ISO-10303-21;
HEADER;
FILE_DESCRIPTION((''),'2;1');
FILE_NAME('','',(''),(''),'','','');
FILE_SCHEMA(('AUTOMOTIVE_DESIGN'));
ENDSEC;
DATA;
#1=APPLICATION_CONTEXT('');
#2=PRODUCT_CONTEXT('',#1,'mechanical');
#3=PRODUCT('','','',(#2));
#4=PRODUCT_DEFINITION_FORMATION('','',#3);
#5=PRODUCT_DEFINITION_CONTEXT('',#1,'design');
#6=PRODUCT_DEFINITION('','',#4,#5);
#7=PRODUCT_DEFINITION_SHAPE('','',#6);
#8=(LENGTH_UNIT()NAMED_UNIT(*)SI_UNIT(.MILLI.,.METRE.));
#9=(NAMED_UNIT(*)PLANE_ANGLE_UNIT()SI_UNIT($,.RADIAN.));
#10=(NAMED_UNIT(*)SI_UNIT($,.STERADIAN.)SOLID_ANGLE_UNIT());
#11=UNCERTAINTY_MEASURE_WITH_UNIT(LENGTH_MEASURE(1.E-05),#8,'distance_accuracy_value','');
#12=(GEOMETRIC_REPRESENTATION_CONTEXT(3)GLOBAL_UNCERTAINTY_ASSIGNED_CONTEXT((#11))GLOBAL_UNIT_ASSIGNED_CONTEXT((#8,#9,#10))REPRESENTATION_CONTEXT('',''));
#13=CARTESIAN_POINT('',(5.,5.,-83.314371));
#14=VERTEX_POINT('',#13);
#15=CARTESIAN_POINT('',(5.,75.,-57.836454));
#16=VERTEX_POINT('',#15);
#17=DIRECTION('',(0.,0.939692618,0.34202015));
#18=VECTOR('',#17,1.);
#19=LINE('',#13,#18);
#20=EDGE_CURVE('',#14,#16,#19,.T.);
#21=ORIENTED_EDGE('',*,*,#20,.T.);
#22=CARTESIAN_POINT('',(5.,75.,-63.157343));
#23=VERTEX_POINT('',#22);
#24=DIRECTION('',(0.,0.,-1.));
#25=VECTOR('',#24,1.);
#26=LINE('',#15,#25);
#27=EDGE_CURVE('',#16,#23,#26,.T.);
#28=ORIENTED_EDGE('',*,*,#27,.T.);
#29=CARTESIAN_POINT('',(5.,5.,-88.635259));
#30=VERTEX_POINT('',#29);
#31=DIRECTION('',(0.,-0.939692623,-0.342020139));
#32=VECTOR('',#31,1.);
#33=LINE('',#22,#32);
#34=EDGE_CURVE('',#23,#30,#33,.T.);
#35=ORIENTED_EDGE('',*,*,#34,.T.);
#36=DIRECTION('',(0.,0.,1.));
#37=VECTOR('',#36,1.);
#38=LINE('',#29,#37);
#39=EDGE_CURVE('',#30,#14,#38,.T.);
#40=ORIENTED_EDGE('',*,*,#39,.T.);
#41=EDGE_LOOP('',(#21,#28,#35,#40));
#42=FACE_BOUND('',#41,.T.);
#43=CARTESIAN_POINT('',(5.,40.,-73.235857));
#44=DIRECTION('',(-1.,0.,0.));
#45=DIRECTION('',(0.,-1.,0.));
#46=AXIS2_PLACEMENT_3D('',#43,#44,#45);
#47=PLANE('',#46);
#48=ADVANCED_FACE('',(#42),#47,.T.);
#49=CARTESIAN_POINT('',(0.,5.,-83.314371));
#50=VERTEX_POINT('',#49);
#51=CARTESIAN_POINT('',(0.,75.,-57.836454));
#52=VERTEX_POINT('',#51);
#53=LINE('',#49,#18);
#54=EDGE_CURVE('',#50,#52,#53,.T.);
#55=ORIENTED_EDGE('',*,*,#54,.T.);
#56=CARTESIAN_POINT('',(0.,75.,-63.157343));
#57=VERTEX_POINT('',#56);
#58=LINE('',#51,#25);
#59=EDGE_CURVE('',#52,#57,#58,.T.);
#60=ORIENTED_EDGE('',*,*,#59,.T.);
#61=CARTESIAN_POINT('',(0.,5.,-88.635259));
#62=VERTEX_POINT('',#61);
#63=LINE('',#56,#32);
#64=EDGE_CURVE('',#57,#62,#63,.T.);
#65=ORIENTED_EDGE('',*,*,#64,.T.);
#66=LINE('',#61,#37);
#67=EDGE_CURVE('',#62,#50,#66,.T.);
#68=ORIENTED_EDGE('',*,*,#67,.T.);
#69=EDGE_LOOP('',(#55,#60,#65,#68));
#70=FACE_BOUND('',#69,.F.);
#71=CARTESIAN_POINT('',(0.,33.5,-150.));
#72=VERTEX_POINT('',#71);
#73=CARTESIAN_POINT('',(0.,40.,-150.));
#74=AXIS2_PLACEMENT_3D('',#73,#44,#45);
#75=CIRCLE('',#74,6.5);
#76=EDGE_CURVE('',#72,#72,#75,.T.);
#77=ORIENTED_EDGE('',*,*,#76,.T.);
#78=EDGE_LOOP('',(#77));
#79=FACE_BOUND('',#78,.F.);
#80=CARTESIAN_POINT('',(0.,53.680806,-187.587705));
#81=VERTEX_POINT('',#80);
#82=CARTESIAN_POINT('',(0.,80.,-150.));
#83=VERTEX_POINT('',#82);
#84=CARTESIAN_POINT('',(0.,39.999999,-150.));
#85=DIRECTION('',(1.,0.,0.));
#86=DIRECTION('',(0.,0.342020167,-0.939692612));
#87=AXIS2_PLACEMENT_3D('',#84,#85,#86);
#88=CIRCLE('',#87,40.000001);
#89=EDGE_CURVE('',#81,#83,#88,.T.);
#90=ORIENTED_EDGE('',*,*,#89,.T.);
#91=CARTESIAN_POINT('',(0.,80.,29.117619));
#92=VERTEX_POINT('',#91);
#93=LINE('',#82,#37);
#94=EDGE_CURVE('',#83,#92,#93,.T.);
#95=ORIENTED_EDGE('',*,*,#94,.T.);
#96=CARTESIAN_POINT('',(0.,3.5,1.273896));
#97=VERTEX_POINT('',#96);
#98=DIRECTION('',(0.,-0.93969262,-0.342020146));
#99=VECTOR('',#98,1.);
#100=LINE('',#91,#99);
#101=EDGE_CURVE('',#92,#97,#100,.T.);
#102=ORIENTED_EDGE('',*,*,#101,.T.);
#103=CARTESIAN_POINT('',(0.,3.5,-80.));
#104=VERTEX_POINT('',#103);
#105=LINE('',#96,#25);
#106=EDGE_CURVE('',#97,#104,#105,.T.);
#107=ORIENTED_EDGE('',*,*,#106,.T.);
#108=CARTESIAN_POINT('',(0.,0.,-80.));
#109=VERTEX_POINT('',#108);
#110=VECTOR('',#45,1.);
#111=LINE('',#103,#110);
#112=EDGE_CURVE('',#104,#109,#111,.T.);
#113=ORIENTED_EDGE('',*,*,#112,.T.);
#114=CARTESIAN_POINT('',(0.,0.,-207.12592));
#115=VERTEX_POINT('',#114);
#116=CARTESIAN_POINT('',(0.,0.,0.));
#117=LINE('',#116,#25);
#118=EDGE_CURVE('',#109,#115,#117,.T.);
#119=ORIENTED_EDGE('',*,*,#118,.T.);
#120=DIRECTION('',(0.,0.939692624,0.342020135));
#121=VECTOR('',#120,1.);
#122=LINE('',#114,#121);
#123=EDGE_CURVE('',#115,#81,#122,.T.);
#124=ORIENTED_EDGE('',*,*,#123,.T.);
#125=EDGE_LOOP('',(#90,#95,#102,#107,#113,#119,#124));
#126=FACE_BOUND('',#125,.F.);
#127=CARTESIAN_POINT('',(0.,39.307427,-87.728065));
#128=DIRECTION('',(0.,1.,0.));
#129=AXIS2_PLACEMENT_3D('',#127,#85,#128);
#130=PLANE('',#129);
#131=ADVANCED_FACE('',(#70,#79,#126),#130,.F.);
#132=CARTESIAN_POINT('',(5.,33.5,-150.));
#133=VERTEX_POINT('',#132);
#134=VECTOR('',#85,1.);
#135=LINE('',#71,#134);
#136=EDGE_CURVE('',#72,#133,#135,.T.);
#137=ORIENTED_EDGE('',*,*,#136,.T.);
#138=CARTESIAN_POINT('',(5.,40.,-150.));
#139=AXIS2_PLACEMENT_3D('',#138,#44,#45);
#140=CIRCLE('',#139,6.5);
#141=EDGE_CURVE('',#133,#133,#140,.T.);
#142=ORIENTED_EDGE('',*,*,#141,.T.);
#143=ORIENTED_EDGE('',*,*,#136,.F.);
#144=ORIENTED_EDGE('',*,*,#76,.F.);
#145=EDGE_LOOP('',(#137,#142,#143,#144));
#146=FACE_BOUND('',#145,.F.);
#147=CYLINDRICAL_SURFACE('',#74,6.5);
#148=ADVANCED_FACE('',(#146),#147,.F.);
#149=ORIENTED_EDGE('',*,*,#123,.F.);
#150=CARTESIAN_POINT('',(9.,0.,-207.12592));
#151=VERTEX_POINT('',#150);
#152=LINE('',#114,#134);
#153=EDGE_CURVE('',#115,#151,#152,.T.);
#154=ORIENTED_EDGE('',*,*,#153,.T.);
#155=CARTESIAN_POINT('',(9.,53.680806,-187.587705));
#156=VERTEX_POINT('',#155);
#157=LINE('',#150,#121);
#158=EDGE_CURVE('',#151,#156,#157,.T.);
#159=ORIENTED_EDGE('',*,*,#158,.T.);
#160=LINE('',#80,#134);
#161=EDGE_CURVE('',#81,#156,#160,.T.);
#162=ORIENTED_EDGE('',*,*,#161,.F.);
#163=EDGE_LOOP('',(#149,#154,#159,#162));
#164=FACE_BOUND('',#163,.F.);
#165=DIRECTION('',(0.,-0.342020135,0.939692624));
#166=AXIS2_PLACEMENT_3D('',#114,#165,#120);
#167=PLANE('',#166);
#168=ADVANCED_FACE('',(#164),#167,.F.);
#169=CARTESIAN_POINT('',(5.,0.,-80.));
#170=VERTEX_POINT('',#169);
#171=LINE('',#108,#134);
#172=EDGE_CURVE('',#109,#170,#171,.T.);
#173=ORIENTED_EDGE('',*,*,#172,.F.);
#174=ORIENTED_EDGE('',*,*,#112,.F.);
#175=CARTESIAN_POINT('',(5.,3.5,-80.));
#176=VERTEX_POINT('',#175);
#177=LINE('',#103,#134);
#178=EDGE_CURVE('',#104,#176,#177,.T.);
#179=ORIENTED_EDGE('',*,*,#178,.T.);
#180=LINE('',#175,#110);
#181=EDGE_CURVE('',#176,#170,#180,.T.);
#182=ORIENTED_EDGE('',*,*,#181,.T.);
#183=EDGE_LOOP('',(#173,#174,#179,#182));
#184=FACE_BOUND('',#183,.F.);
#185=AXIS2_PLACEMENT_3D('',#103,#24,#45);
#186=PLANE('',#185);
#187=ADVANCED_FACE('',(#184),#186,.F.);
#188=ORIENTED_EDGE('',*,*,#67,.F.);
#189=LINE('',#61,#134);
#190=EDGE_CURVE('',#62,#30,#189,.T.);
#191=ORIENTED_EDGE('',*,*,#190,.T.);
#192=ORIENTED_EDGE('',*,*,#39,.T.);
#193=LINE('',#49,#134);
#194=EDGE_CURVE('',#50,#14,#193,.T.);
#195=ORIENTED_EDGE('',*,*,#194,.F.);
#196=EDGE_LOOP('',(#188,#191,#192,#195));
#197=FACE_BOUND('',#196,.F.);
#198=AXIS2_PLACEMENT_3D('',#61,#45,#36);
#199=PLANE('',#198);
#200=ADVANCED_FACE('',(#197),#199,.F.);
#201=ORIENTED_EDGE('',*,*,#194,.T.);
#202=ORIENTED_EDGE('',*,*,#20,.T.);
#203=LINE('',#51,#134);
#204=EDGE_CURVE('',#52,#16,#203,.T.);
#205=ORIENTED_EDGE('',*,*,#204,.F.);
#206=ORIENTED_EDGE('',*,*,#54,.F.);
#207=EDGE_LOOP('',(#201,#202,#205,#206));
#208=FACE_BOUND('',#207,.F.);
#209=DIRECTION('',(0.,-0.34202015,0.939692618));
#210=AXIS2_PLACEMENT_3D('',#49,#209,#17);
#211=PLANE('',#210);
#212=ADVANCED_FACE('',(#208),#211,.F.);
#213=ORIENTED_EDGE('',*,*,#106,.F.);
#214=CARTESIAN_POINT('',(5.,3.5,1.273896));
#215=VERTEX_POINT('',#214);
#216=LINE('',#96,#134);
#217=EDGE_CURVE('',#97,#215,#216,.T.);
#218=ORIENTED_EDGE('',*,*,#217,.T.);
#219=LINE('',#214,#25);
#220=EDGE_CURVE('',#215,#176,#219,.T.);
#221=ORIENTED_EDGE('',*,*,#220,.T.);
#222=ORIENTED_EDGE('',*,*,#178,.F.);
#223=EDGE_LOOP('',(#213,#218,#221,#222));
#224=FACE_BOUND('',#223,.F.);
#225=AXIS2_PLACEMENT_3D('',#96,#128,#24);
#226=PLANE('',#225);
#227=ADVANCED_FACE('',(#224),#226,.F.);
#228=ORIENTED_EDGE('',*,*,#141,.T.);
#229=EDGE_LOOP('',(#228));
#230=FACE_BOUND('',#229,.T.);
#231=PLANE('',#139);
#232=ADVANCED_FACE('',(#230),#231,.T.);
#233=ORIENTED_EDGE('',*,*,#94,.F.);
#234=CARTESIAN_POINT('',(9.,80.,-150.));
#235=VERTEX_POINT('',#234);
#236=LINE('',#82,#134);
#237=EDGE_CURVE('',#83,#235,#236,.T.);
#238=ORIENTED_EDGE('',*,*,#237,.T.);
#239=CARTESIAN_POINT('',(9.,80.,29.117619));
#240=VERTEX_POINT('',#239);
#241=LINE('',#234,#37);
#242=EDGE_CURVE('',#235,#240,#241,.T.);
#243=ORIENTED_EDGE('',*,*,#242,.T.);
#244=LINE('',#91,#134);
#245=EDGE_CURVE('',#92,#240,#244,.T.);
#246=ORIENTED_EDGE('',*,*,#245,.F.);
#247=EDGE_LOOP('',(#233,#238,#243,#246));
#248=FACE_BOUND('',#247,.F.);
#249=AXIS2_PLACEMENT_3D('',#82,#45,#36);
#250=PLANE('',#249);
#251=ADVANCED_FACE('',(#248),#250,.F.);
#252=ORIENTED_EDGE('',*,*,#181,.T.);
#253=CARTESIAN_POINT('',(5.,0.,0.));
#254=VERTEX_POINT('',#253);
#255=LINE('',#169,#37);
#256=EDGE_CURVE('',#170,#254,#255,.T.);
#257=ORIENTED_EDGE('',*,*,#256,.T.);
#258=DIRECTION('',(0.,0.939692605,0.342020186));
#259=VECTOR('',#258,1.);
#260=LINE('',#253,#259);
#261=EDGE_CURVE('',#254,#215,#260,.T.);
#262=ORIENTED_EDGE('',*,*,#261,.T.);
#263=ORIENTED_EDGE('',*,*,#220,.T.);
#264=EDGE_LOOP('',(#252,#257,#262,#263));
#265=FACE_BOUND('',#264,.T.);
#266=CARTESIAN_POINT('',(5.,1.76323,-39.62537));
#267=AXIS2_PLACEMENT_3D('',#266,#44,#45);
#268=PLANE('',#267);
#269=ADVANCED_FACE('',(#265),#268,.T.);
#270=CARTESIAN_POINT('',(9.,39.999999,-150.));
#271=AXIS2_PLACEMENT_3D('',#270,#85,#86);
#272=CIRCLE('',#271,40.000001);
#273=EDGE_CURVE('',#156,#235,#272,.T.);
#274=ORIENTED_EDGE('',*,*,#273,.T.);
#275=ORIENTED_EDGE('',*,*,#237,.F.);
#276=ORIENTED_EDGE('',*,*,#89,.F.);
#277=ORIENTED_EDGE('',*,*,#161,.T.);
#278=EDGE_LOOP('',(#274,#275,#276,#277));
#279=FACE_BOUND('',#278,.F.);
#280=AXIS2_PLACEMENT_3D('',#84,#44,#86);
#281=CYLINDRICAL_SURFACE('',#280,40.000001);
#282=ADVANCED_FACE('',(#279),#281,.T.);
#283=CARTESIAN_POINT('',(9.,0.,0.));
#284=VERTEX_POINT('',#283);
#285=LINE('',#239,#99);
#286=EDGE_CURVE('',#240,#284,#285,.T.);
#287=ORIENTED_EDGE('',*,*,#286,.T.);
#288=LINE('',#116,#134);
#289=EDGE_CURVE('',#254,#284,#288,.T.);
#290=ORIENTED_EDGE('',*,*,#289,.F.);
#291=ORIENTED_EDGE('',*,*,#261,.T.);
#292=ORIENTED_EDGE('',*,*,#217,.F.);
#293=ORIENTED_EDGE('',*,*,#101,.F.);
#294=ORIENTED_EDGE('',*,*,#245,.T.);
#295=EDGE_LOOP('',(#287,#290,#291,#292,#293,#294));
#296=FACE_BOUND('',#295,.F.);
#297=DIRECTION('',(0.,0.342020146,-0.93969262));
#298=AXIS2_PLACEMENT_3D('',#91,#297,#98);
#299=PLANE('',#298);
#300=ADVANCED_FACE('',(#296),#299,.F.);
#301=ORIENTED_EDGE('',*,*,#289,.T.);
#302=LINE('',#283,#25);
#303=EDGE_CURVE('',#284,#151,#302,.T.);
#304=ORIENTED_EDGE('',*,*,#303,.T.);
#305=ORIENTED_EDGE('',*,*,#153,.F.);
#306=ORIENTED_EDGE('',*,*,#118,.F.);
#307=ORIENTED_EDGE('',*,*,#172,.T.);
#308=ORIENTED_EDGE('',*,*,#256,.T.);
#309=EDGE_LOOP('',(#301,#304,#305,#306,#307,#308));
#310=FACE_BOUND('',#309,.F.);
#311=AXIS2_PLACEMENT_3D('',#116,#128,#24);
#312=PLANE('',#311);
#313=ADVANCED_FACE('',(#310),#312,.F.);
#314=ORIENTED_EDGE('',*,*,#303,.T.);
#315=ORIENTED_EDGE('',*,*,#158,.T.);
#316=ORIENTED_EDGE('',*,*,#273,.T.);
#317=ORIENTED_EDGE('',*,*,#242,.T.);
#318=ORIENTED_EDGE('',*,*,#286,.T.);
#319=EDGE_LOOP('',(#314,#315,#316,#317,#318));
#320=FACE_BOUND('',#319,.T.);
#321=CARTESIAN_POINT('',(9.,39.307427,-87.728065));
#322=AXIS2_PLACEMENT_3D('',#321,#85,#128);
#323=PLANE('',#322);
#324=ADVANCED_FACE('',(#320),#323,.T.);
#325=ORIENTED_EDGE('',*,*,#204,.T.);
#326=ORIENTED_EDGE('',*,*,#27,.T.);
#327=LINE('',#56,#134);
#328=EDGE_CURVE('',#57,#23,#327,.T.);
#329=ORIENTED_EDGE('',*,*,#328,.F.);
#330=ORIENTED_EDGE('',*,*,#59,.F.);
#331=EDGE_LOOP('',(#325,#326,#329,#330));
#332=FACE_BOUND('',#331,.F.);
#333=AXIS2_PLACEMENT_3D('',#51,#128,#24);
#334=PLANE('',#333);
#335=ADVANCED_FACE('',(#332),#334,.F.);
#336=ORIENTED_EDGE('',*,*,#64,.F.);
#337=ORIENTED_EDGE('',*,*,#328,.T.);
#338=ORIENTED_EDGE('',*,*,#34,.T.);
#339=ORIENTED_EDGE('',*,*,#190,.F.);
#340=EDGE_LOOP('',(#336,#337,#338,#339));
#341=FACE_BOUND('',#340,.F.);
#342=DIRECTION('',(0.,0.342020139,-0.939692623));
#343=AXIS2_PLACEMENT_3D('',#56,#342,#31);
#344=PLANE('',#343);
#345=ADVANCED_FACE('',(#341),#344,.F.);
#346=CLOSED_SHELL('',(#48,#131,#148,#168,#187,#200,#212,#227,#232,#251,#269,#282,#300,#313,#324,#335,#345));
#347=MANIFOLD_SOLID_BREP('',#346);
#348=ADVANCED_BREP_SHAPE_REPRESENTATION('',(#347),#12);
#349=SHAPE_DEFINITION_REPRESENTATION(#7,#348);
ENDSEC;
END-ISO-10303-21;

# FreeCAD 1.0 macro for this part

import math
import FreeCAD as App
import Part
import Sketcher

V = App.Vector
Q = App.Units.Quantity


def add_polygon(sketch, points):
    """Adds a closed chain of lines whose ends are joined by coincident constraints."""
    first, n = sketch.GeometryCount, len(points)
    for a, b in zip(points, points[1:] + points[:1]):
        sketch.addGeometry(Part.LineSegment(App.Vector(*a, 0), App.Vector(*b, 0)), False)
    for i in range(n):
        sketch.addConstraint(Sketcher.Constraint("Coincident", first + i, 2, first + (i + 1) % n, 1))

doc = App.newDocument("Part")
params = doc.addObject("Spreadsheet::Sheet", "Params")
for row, (alias, value) in enumerate([
    ("sketch1_radius", "40.000001 mm"),
    ("pad1_length", "9 mm"),
    ("sketch2_diameter", "13 mm"),
    ("pocket1_length", "5 mm"),
    ("pocket2_length", "5 mm"),
    ("sketch4_height", "80 mm"),
    ("sketch4_width", "3.5 mm"),
    ("pocket3_length", "5 mm"),
], start=1):
    params.set(f"A{row}", alias)
    params.set(f"B{row}", "=" + value)
    params.setAlias(f"B{row}", alias)

body = doc.addObject("PartDesign::Body", "Body")

# Sketch on YZ plane
sketch1 = body.newObject("Sketcher::SketchObject", "Sketch")
sketch1.AttachmentSupport = (doc.getObject("YZ_Plane"), [""])
sketch1.MapMode = "FlatFace"
sketch1.addGeometry(Part.LineSegment(V(80, 29, 0), V(0, 0, 0)), False)
sketch1.addGeometry(Part.LineSegment(V(0, 0, 0), V(0, -207, 0)), False)
sketch1.addGeometry(Part.LineSegment(V(0, -207, 0), V(54, -188, 0)), False)
sketch1.addGeometry(Part.ArcOfCircle(Part.Circle(V(40, -150, 0), V(0, 0, 1), 40), math.radians(-70), math.radians(0)), False)
sketch1.addGeometry(Part.LineSegment(V(80, -150, 0), V(80, 29, 0)), False)
sketch1.addConstraint(Sketcher.Constraint("Coincident", 0, 2, 1, 1))
sketch1.addConstraint(Sketcher.Constraint("Coincident", 1, 2, 2, 1))
sketch1.addConstraint(Sketcher.Constraint("Tangent", 2, 2, 3, 1))
sketch1.addConstraint(Sketcher.Constraint("Tangent", 3, 2, 4, 1))
sketch1.addConstraint(Sketcher.Constraint("Coincident", 4, 2, 0, 1))
sketch1.addConstraint(Sketcher.Constraint("Vertical", 1))
sketch1.addConstraint(Sketcher.Constraint("Vertical", 4))
sketch1.addConstraint(Sketcher.Constraint("Coincident", 0, 2, -1, 1))
sketch1.addConstraint(Sketcher.Constraint("Parallel", 0, 2))
sketch1.addConstraint(Sketcher.Constraint("Radius", 3, 40.000001))
sketch1.addConstraint(Sketcher.Constraint("Angle", 0, Q("-160 deg")))
sketch1.addConstraint(Sketcher.Constraint("DistanceX", -1, 1, 3, 3, 39.999999))
sketch1.addConstraint(Sketcher.Constraint("DistanceY", 3, 3, -1, 1, 150.0))
sketch1.setExpression("Constraints[9]", "Params.sketch1_radius")
pad1 = body.newObject("PartDesign::Pad", "Pad")
pad1.Profile = sketch1
pad1.setExpression("Length", "Params.pad1_length")

# Sketch on YZ plane
sketch2 = body.newObject("Sketcher::SketchObject", "Sketch001")
sketch2.AttachmentSupport = (doc.getObject("YZ_Plane"), [""])
sketch2.MapMode = "FlatFace"
sketch2.addGeometry(Part.Circle(V(40, -150, 0), V(0, 0, 1), 6), False)
sketch2.addConstraint(Sketcher.Constraint("Diameter", 0, 13.0))
sketch2.addConstraint(Sketcher.Constraint("DistanceX", -1, 1, 0, 3, 40.0))
sketch2.addConstraint(Sketcher.Constraint("DistanceY", 0, 3, -1, 1, 150.0))
sketch2.setExpression("Constraints[0]", "Params.sketch2_diameter")
pocket1 = body.newObject("PartDesign::Pocket", "Pocket")
pocket1.Profile = sketch2
pocket1.setExpression("Length", "Params.pocket1_length")
pocket1.Reversed = True

# Sketch on YZ plane
sketch3 = body.newObject("Sketcher::SketchObject", "Sketch002")
sketch3.AttachmentSupport = (doc.getObject("YZ_Plane"), [""])
sketch3.MapMode = "FlatFace"
add_polygon(sketch3, [(5, -89), (5, -83), (75, -58), (75, -63)])  # lines 0-3
sketch3.addConstraint(Sketcher.Constraint("Vertical", 0))
sketch3.addConstraint(Sketcher.Constraint("Vertical", 2))
sketch3.addConstraint(Sketcher.Constraint("Parallel", 1, 3))
sketch3.addConstraint(Sketcher.Constraint("Angle", 1, Q("20 deg")))
sketch3.addConstraint(Sketcher.Constraint("DistanceX", -1, 1, 0, 2, 5.0))
sketch3.addConstraint(Sketcher.Constraint("DistanceX", -1, 1, 1, 2, 75.0))
sketch3.addConstraint(Sketcher.Constraint("DistanceY", 0, 1, 0, 2, 5.320888))
sketch3.addConstraint(Sketcher.Constraint("DistanceY", 0, 2, -1, 1, 83.314371))
pocket2 = body.newObject("PartDesign::Pocket", "Pocket001")
pocket2.Profile = sketch3
pocket2.setExpression("Length", "Params.pocket2_length")
pocket2.Reversed = True

# Sketch on YZ plane
sketch4 = body.newObject("Sketcher::SketchObject", "Sketch003")
sketch4.AttachmentSupport = (doc.getObject("YZ_Plane"), [""])
sketch4.MapMode = "FlatFace"
add_polygon(sketch4, [(0, 0), (3.5, 1.3), (3.5, -80), (0, -80)])  # lines 0-3
sketch4.addConstraint(Sketcher.Constraint("Vertical", 1))
sketch4.addConstraint(Sketcher.Constraint("Horizontal", 2))
sketch4.addConstraint(Sketcher.Constraint("Vertical", 3))
sketch4.addConstraint(Sketcher.Constraint("Coincident", 3, 2, -1, 1))
sketch4.addConstraint(Sketcher.Constraint("DistanceY", 3, 1, 3, 2, 80.0))
sketch4.addConstraint(Sketcher.Constraint("Angle", 0, Q("20.000003 deg")))
sketch4.addConstraint(Sketcher.Constraint("DistanceX", 2, 2, 2, 1, 3.5))
sketch4.setExpression("Constraints[8]", "Params.sketch4_height")
sketch4.setExpression("Constraints[10]", "Params.sketch4_width")
pocket3 = body.newObject("PartDesign::Pocket", "Pocket002")
pocket3.Profile = sketch4
pocket3.setExpression("Length", "Params.pocket3_length")
pocket3.Reversed = True

doc.recompute()
